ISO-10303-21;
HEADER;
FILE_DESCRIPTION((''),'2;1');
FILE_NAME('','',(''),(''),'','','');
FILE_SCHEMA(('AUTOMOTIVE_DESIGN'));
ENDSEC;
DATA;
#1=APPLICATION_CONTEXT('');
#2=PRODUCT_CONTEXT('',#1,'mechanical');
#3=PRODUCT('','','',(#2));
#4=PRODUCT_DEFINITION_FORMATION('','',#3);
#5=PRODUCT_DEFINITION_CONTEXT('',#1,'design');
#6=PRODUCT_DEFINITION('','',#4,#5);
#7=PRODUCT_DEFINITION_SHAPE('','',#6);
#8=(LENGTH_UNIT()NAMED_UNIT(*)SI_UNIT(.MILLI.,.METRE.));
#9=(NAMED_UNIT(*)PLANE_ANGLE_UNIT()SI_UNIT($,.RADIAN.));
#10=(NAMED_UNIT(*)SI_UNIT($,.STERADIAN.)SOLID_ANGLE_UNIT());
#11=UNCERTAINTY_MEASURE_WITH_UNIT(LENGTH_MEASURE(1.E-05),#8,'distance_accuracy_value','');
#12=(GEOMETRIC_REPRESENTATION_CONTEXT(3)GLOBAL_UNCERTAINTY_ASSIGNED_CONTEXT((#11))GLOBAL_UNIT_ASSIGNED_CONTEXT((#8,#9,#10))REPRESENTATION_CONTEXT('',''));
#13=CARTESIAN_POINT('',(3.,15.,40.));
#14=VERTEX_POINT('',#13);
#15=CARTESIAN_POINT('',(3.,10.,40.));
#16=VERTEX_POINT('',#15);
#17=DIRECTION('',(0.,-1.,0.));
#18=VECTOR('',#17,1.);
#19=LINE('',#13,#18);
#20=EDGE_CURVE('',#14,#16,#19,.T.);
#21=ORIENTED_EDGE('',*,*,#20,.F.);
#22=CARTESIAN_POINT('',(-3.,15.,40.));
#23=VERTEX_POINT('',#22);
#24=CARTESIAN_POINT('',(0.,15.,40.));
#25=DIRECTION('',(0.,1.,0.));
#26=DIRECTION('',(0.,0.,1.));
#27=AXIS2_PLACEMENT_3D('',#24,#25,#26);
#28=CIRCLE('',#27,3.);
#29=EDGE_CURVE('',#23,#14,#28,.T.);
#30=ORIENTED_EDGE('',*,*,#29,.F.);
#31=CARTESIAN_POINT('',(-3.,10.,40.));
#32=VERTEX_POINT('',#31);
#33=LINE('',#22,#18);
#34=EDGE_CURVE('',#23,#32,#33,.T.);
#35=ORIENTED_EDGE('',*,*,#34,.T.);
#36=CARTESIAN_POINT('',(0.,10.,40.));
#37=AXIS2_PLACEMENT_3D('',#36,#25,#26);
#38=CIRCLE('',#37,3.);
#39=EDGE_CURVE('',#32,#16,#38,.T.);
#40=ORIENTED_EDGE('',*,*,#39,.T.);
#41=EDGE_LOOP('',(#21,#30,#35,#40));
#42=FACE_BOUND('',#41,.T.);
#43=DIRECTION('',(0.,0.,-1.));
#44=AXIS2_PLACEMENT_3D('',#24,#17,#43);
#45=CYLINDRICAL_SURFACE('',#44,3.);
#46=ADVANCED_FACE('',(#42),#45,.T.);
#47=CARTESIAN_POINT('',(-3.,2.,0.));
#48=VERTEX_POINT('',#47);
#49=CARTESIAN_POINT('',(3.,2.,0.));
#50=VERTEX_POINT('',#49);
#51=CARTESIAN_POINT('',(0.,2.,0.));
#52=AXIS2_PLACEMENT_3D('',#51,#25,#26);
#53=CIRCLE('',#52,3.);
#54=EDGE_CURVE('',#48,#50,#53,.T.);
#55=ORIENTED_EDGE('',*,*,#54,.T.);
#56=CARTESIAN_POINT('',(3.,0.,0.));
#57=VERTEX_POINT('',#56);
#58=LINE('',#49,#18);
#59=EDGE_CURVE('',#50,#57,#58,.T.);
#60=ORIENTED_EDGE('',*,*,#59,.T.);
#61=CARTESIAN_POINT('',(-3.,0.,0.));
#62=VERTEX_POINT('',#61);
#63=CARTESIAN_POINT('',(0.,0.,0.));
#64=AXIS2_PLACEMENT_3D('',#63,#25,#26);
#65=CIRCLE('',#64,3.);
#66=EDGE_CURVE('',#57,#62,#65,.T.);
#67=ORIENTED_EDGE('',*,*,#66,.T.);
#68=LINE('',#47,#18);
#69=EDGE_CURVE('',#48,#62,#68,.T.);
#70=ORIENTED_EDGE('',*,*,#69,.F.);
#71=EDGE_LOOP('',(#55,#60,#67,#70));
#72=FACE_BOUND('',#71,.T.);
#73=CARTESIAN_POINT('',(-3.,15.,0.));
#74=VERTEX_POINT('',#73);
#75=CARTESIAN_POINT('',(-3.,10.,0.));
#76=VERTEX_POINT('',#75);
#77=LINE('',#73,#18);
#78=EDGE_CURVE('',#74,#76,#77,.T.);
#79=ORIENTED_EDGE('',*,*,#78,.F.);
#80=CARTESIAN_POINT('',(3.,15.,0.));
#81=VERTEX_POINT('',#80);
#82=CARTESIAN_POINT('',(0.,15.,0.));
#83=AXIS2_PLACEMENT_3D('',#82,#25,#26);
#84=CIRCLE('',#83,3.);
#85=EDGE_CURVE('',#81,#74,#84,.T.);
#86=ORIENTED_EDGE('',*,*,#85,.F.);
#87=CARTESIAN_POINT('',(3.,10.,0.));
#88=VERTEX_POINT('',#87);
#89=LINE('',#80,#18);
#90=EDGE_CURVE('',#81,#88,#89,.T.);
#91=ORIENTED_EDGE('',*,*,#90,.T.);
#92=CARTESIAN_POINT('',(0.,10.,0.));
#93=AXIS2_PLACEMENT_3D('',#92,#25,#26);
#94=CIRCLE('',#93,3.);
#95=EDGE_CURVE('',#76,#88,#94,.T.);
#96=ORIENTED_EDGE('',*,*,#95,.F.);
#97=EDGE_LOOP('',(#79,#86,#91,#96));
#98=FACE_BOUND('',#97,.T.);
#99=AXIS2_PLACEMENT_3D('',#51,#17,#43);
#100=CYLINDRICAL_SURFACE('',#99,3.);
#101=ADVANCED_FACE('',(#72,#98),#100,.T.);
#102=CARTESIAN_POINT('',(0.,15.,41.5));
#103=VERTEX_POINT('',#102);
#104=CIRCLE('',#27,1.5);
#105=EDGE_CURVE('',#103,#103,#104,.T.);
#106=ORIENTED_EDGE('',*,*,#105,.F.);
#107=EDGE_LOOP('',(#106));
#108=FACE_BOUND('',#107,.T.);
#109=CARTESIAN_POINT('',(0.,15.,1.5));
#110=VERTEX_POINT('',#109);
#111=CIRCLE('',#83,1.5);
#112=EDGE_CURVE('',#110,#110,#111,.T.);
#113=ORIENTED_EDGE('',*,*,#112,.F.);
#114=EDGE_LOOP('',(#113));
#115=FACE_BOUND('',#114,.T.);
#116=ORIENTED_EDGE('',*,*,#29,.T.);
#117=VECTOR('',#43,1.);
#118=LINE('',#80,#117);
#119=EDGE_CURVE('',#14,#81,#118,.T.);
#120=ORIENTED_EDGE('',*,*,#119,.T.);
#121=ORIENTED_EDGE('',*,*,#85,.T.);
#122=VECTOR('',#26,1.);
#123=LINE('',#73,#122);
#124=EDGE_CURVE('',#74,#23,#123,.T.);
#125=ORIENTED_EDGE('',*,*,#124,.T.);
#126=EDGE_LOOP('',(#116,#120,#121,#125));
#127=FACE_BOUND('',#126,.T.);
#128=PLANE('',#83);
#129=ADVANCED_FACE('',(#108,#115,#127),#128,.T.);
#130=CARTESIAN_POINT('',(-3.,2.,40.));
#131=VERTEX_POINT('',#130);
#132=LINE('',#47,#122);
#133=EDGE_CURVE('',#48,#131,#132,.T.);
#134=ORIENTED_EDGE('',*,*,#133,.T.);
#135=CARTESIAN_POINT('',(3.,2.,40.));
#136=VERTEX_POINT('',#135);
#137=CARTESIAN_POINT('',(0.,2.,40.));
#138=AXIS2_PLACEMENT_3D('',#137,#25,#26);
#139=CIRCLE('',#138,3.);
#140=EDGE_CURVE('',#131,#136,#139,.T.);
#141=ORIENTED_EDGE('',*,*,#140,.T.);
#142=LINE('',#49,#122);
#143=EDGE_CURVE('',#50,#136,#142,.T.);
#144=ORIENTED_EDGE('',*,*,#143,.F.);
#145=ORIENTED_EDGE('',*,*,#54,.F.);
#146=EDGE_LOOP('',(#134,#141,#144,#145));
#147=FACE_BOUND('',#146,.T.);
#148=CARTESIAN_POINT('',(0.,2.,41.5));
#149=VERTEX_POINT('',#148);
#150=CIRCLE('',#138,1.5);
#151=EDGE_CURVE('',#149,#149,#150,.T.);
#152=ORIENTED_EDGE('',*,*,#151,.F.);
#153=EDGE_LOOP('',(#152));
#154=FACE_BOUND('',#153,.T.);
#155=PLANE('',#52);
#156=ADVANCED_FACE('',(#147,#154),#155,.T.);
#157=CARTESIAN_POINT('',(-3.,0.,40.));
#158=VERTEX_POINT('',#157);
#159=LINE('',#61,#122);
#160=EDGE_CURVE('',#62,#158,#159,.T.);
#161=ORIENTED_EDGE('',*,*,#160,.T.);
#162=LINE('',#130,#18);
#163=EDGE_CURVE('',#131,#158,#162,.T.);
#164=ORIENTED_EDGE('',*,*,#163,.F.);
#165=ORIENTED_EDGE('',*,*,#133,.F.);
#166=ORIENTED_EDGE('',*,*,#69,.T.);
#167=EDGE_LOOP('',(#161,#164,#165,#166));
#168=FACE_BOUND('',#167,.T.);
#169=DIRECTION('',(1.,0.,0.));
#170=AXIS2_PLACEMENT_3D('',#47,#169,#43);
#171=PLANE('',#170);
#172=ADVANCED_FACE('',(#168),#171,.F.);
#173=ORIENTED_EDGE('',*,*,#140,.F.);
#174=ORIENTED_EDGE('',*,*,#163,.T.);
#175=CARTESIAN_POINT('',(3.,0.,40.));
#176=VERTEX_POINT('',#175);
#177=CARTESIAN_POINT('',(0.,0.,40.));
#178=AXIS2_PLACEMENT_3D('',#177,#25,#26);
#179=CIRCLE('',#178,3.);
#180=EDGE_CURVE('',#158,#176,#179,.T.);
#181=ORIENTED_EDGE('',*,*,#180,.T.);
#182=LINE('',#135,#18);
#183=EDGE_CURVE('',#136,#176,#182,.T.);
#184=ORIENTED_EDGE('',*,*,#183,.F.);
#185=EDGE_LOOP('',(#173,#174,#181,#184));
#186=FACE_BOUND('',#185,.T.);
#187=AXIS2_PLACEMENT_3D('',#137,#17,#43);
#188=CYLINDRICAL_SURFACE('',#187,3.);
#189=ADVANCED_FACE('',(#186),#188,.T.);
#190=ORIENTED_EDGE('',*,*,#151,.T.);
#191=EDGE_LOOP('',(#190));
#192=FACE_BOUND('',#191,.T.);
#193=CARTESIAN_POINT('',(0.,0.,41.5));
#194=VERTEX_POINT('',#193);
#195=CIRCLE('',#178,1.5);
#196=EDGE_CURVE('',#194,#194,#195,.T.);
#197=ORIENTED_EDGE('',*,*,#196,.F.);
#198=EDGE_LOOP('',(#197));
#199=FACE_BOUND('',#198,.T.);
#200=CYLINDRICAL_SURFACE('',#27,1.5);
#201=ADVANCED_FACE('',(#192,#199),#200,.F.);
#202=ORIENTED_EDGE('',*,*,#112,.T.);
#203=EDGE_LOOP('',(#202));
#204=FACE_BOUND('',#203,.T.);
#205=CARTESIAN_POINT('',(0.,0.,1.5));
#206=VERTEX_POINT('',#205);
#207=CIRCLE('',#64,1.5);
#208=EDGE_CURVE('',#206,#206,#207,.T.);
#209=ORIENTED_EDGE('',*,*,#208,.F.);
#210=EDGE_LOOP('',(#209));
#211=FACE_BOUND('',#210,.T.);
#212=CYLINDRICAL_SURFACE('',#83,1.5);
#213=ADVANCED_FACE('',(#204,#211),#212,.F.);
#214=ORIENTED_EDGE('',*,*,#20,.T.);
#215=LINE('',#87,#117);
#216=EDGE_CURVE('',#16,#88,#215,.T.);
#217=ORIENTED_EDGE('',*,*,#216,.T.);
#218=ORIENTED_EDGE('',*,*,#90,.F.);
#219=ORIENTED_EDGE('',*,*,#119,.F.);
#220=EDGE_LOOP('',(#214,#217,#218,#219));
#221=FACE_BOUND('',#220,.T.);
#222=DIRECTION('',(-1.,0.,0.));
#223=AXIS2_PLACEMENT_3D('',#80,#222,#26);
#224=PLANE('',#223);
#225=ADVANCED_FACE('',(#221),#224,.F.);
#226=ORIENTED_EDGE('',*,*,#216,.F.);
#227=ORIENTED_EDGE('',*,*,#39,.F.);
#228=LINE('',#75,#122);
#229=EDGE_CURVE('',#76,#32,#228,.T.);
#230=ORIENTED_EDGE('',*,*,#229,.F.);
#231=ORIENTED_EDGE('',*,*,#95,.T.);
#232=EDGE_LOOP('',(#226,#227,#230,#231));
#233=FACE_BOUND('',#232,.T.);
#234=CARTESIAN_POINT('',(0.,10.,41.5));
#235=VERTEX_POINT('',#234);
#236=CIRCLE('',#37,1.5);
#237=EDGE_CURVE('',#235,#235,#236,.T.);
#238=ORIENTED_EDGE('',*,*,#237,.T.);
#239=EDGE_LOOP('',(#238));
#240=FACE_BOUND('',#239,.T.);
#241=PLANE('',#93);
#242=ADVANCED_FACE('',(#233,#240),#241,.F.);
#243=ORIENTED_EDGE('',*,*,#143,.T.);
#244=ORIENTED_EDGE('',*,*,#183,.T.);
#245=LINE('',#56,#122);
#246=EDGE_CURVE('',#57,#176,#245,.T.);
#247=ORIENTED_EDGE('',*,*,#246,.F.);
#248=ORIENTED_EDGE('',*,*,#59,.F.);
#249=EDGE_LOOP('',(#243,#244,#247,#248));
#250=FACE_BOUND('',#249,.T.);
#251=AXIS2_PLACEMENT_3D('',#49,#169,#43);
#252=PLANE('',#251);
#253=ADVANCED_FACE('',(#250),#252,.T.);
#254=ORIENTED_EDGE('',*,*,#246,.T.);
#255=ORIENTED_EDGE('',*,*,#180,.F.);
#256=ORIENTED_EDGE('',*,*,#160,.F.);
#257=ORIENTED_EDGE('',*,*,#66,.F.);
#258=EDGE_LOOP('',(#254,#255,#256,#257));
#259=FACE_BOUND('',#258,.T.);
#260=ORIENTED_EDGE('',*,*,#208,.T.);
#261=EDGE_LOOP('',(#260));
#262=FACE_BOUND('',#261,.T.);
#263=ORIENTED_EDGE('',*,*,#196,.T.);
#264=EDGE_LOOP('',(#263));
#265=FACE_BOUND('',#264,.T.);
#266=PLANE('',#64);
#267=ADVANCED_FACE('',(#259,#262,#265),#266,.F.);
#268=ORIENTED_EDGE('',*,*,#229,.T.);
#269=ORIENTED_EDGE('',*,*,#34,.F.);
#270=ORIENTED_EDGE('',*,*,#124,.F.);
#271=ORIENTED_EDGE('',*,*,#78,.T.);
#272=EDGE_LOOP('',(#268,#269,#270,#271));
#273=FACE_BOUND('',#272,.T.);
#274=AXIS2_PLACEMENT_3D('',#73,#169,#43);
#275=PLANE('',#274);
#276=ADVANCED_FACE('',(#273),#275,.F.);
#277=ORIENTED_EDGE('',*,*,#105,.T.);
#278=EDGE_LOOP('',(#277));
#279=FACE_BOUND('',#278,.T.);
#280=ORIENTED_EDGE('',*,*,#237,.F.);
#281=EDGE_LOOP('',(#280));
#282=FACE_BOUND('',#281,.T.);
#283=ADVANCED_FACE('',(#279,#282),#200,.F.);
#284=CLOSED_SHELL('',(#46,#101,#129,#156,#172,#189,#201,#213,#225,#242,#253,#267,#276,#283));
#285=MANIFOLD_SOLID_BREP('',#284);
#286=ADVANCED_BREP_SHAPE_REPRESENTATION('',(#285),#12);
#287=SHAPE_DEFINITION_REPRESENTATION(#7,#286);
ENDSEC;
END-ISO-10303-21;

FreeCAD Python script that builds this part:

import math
import FreeCAD as App
import Part
import Sketcher
from FreeCAD import Vector
Q = App.Units.Quantity

doc = App.newDocument("Part")
body = doc.addObject("PartDesign::Body", "Body")

sketch1 = doc.addObject("Sketcher::SketchObject", "Sketch")
body.addObject(sketch1)
sketch1.AttachmentSupport = (doc.XZ_Plane, [""])
sketch1.MapMode = "FlatFace"
sketch1.addGeometry(Part.LineSegment(Vector(3, 40, 0), Vector(3, 0, 0)), False)
sketch1.addGeometry(Part.ArcOfCircle(Part.Circle(Vector(0, 0, 0), Vector(0, 0, 1), 3), math.radians(180), math.radians(360)), False)
sketch1.addGeometry(Part.LineSegment(Vector(-3, 0, 0), Vector(-3, 40, 0)), False)
sketch1.addGeometry(Part.ArcOfCircle(Part.Circle(Vector(0, 40, 0), Vector(0, 0, 1), 3), math.radians(0), math.radians(180)), False)
sketch1.addConstraint(Sketcher.Constraint("Tangent", 0, 2, 1, 2))
sketch1.addConstraint(Sketcher.Constraint("Tangent", 1, 1, 2, 1))
sketch1.addConstraint(Sketcher.Constraint("Tangent", 2, 2, 3, 2))
sketch1.addConstraint(Sketcher.Constraint("Tangent", 3, 1, 0, 1))
sketch1.addConstraint(Sketcher.Constraint("Vertical", 0))
sketch1.addConstraint(Sketcher.Constraint("Vertical", 2))
sketch1.addConstraint(Sketcher.Constraint("Coincident", 1, 3, -1, 1))
sketch1.addConstraint(Sketcher.Constraint("Radius", 1, Q("3 mm")))
sketch1.addConstraint(Sketcher.Constraint("DistanceY", 0, 2, 0, 1, Q("40 mm")))
pad1 = doc.addObject("PartDesign::Pad", "Pad")
body.addObject(pad1)
pad1.Profile = sketch1
pad1.Length = 2
pad1.Reversed = True

sketch2 = doc.addObject("Sketcher::SketchObject", "Sketch001")
body.addObject(sketch2)
sketch2.AttachmentSupport = (doc.XZ_Plane, [""])
sketch2.MapMode = "FlatFace"
sketch2.AttachmentOffset = App.Placement(Vector(0, 0, -2), App.Rotation())
sketch2.addGeometry(Part.Circle(Vector(0, 0, 0), Vector(0, 0, 1), 3), False)
sketch2.addConstraint(Sketcher.Constraint("Coincident", 0, 3, -1, 1))
sketch2.addConstraint(Sketcher.Constraint("Diameter", 0, Q("6 mm")))
pad2 = doc.addObject("PartDesign::Pad", "Pad001")
body.addObject(pad2)
pad2.Profile = sketch2
pad2.Length = 12
pad2.Reversed = True

sketch3 = doc.addObject("Sketcher::SketchObject", "Sketch002")
body.addObject(sketch3)
sketch3.AttachmentSupport = (doc.XZ_Plane, [""])
sketch3.MapMode = "FlatFace"
sketch3.AttachmentOffset = App.Placement(Vector(0, 0, -10), App.Rotation())
sketch3.addGeometry(Part.LineSegment(Vector(3, 40, 0), Vector(3, 0, 0)), False)
sketch3.addGeometry(Part.ArcOfCircle(Part.Circle(Vector(0, 0, 0), Vector(0, 0, 1), 3), math.radians(180), math.radians(360)), False)
sketch3.addGeometry(Part.LineSegment(Vector(-3, 0, 0), Vector(-3, 40, 0)), False)
sketch3.addGeometry(Part.ArcOfCircle(Part.Circle(Vector(0, 40, 0), Vector(0, 0, 1), 3), math.radians(0), math.radians(180)), False)
sketch3.addConstraint(Sketcher.Constraint("Tangent", 0, 2, 1, 2))
sketch3.addConstraint(Sketcher.Constraint("Tangent", 1, 1, 2, 1))
sketch3.addConstraint(Sketcher.Constraint("Tangent", 2, 2, 3, 2))
sketch3.addConstraint(Sketcher.Constraint("Tangent", 3, 1, 0, 1))
sketch3.addConstraint(Sketcher.Constraint("Vertical", 0))
sketch3.addConstraint(Sketcher.Constraint("Vertical", 2))
sketch3.addConstraint(Sketcher.Constraint("Coincident", 1, 3, -1, 1))
sketch3.addConstraint(Sketcher.Constraint("Radius", 1, Q("3 mm")))
sketch3.addConstraint(Sketcher.Constraint("DistanceY", 0, 2, 0, 1, Q("40 mm")))
pad3 = doc.addObject("PartDesign::Pad", "Pad002")
body.addObject(pad3)
pad3.Profile = sketch3
pad3.Length = 5
pad3.Reversed = True

sketch4 = doc.addObject("Sketcher::SketchObject", "Sketch003")
body.addObject(sketch4)
sketch4.AttachmentSupport = (doc.XZ_Plane, [""])
sketch4.MapMode = "FlatFace"
sketch4.AttachmentOffset = App.Placement(Vector(0, 0, -15), App.Rotation())
sketch4.addGeometry(Part.Circle(Vector(0, 0, 0), Vector(0, 0, 1), 1.5), False)
sketch4.addGeometry(Part.Circle(Vector(0, 40, 0), Vector(0, 0, 1), 1.5), False)
sketch4.addConstraint(Sketcher.Constraint("Coincident", 0, 3, -1, 1))
sketch4.addConstraint(Sketcher.Constraint("Equal", 0, 1))
sketch4.addConstraint(Sketcher.Constraint("PointOnObject", 1, 3, -2))
sketch4.addConstraint(Sketcher.Constraint("Diameter", 0, Q("3 mm")))
sketch4.addConstraint(Sketcher.Constraint("DistanceY", -1, 1, 1, 3, Q("40 mm")))
doc.recompute()
hole = doc.addObject("PartDesign::Hole", "Hole")
body.addObject(hole)
hole.Profile = sketch4
hole.ThreadType = "None"
hole.Diameter = 3
hole.DepthType = "ThroughAll"
hole.Reversed = True

doc.recompute()
